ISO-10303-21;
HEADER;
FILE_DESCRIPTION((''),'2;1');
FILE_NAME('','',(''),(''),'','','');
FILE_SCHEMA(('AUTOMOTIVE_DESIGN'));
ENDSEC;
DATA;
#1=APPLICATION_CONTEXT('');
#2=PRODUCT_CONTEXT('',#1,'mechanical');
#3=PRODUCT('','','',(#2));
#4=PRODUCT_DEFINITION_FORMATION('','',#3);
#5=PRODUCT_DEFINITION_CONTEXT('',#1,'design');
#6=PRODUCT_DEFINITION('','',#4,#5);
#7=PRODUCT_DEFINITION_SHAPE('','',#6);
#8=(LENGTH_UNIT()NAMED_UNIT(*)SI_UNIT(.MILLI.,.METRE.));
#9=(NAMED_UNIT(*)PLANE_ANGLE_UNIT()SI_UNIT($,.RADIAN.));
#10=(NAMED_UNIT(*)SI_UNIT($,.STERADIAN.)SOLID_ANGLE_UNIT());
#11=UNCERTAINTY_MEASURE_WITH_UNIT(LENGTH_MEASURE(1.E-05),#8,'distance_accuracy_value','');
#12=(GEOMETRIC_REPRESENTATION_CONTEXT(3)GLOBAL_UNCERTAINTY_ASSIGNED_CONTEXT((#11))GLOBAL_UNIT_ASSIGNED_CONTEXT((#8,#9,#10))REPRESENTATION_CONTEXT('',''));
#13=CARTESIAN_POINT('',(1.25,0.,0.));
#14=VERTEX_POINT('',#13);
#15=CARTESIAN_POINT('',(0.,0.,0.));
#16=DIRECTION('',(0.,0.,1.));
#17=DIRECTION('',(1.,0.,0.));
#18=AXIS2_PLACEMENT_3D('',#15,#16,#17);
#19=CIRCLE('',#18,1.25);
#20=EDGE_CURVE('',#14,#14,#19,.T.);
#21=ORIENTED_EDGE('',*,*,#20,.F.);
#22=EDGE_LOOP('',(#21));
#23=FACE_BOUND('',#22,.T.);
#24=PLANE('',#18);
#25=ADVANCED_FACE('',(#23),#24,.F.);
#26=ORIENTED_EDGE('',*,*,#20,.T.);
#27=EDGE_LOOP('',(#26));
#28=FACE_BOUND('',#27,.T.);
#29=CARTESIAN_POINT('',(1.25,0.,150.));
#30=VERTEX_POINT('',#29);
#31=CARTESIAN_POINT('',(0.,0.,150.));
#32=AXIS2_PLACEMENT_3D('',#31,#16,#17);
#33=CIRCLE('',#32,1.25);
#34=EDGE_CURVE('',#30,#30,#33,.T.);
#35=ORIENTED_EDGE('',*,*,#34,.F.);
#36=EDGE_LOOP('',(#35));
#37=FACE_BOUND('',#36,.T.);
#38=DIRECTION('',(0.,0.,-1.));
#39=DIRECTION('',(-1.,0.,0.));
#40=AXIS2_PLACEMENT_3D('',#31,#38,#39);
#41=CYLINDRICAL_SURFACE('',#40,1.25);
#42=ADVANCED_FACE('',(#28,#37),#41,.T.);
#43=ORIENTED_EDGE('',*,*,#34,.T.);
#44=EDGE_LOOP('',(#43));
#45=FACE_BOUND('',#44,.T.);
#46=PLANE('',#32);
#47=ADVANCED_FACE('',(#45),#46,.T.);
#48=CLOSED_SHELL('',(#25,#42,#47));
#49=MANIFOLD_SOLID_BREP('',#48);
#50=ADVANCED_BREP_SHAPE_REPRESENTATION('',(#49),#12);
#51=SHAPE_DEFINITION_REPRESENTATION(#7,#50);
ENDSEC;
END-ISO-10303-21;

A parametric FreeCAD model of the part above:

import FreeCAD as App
import Part
import Sketcher
from FreeCAD import Vector

doc = App.newDocument("Part")
body = doc.addObject("PartDesign::Body", "Body")

# Sketch on XY plane
sketch1 = doc.addObject("Sketcher::SketchObject", "Sketch")
body.addObject(sketch1)
sketch1.AttachmentSupport = (doc.XY_Plane, [""])
sketch1.MapMode = "FlatFace"
sketch1.addGeometry(Part.Circle(Vector(0, 0, 0), Vector(0, 0, 1), 1.2), False)
sketch1.addConstraint(Sketcher.Constraint("Coincident", 0, 3, -1, 1))
sketch1.addConstraint(Sketcher.Constraint("Diameter", 0, 2.5))
pad1 = doc.addObject("PartDesign::Pad", "Pad")
body.addObject(pad1)
pad1.Profile = sketch1
pad1.Length = 150

doc.recompute()
